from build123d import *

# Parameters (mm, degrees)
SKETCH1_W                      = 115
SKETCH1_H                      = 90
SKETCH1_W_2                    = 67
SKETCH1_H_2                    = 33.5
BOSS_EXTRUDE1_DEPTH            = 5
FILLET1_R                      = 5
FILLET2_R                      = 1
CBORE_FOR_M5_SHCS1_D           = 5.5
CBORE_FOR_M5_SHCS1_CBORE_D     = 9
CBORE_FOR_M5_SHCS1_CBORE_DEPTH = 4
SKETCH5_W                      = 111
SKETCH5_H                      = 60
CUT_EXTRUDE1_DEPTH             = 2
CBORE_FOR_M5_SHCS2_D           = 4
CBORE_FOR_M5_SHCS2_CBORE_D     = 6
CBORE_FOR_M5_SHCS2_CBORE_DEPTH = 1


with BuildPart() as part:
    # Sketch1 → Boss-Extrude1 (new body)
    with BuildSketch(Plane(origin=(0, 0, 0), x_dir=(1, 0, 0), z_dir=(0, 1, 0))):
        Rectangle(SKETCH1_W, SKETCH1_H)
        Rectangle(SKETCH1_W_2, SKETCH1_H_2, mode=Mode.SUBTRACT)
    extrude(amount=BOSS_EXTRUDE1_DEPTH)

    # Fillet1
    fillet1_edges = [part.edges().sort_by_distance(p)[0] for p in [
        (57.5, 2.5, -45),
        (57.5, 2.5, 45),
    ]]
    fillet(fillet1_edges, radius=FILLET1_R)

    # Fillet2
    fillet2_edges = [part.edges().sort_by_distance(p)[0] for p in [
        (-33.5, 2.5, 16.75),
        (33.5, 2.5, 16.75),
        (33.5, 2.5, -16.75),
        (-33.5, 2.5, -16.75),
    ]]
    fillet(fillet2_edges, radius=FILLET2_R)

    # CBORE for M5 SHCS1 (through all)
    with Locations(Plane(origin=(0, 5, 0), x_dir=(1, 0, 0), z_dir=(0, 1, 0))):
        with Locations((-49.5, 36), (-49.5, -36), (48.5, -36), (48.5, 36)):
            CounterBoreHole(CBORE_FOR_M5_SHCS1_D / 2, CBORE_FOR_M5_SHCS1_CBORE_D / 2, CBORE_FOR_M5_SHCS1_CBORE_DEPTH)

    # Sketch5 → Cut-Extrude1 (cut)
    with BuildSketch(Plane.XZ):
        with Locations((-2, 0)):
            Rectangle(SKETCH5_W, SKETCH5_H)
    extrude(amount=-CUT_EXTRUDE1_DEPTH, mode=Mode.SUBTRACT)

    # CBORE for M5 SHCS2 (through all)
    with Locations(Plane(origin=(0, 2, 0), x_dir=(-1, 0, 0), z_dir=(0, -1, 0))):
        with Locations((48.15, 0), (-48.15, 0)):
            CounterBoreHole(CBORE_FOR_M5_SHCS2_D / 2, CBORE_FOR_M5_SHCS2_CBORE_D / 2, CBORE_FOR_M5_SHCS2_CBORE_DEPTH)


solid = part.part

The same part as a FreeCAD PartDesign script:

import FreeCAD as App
import Part
import Sketcher

V = App.Vector


def edges_at(feature, points):
    """Names of the edges that pass closest to the given points."""
    edges = feature.Shape.Edges
    near = lambda p: min(range(len(edges)), key=lambda i: edges[i].distToShape(Part.Vertex(*p))[0])
    return sorted({f"Edge{near(p) + 1}" for p in points})


def add_polygon(sketch, points):
    """Adds a closed chain of lines whose ends are joined by coincident constraints."""
    first, n = sketch.GeometryCount, len(points)
    for a, b in zip(points, points[1:] + points[:1]):
        sketch.addGeometry(Part.LineSegment(App.Vector(*a, 0), App.Vector(*b, 0)), False)
    for i in range(n):
        sketch.addConstraint(Sketcher.Constraint("Coincident", first + i, 2, first + (i + 1) % n, 1))

doc = App.newDocument("Part")
params = doc.addObject("Spreadsheet::Sheet", "Params")
for row, (alias, value) in enumerate([
    ("sketch1_width", "115 mm"),
    ("sketch1_width2", "67 mm"),
    ("sketch1_height", "90 mm"),
    ("sketch1_height2", "33.5 mm"),
    ("pad1_length", "5 mm"),
    ("fillet_radius", "5 mm"),
    ("fillet2_radius", "1 mm"),
    ("sketch2_diameter", "5.5 mm"),
    ("hole_diameter", "5.5 mm"),
    ("hole_cbore_diameter", "9 mm"),
    ("hole_cbore_depth", "4 mm"),
    ("sketch3_width", "111 mm"),
    ("sketch3_height", "60 mm"),
    ("pocket1_length", "2 mm"),
    ("sketch4_diameter", "4 mm"),
    ("hole2_diameter", "4 mm"),
    ("hole2_cbore_diameter", "6 mm"),
    ("hole2_cbore_depth", "1 mm"),
], start=1):
    params.set(f"A{row}", alias)
    params.set(f"B{row}", "=" + value)
    params.setAlias(f"B{row}", alias)

body = doc.addObject("PartDesign::Body", "Body")

sketch1 = doc.addObject("Sketcher::SketchObject", "Sketch")
body.addObject(sketch1)
sketch1.AttachmentSupport = (doc.XZ_Plane, [""])
sketch1.MapMode = "FlatFace"
add_polygon(sketch1, [(-58, -45), (-58, 45), (58, 45), (58, -45)])
add_polygon(sketch1, [(34, 17), (-34, 17), (-34, -17), (34, -17)])
sketch1.addConstraint(Sketcher.Constraint("Vertical", 0))
sketch1.addConstraint(Sketcher.Constraint("Horizontal", 1))
sketch1.addConstraint(Sketcher.Constraint("Vertical", 2))
sketch1.addConstraint(Sketcher.Constraint("Horizontal", 3))
sketch1.addConstraint(Sketcher.Constraint("Horizontal", 4))
sketch1.addConstraint(Sketcher.Constraint("Vertical", 5))
sketch1.addConstraint(Sketcher.Constraint("Horizontal", 6))
sketch1.addConstraint(Sketcher.Constraint("Vertical", 7))
sketch1.addConstraint(Sketcher.Constraint("Symmetric", 0, 2, 2, 2, -1, 1))
sketch1.addConstraint(Sketcher.Constraint("Symmetric", 4, 2, 6, 2, -1, 1))
sketch1.addConstraint(Sketcher.Constraint("DistanceX", 1, 1, 1, 2, 115.0))
sketch1.addConstraint(Sketcher.Constraint("DistanceX", 4, 2, 4, 1, 67.0))
sketch1.addConstraint(Sketcher.Constraint("DistanceY", 0, 1, 0, 2, 90.0))
sketch1.addConstraint(Sketcher.Constraint("DistanceY", 5, 2, 5, 1, 33.5))
sketch1.setExpression("Constraints[18]", "Params.sketch1_width")
sketch1.setExpression("Constraints[19]", "Params.sketch1_width2")
sketch1.setExpression("Constraints[20]", "Params.sketch1_height")
sketch1.setExpression("Constraints[21]", "Params.sketch1_height2")
pad1 = doc.addObject("PartDesign::Pad", "Pad")
body.addObject(pad1)
pad1.Profile = sketch1
pad1.setExpression("Length", "Params.pad1_length")
pad1.Reversed = True
doc.recompute()

fillet = doc.addObject("PartDesign::Fillet", "Fillet")
body.addObject(fillet)
fillet.Base = (pad1, edges_at(pad1, [(57.5, 2.5, -45), (57.5, 2.5, 45)]))
fillet.setExpression("Radius", "Params.fillet_radius")
doc.recompute()

fillet2 = doc.addObject("PartDesign::Fillet", "Fillet001")
body.addObject(fillet2)
fillet2.Base = (fillet, edges_at(fillet, [
    (-33.5, 2.5, 16.75),
    (33.5, 2.5, 16.75),
    (33.5, 2.5, -16.75),
    (-33.5, 2.5, -16.75),
]))
fillet2.setExpression("Radius", "Params.fillet2_radius")

sketch2 = doc.addObject("Sketcher::SketchObject", "Sketch001")
body.addObject(sketch2)
sketch2.AttachmentSupport = (doc.XZ_Plane, [""])
sketch2.MapMode = "FlatFace"
sketch2.AttachmentOffset = App.Placement(V(0, 0, -5), App.Rotation())
sketch2.addGeometry(Part.Circle(V(-49.5, -36, 0), V(0, 0, 1), 2.8), False)
sketch2.addGeometry(Part.Circle(V(-49.5, 36, 0), V(0, 0, 1), 2.8), False)
sketch2.addGeometry(Part.Circle(V(48.5, 36, 0), V(0, 0, 1), 2.8), False)
sketch2.addGeometry(Part.Circle(V(48.5, -36, 0), V(0, 0, 1), 2.8), False)
sketch2.addConstraint(Sketcher.Constraint("Equal", 0, 1))
sketch2.addConstraint(Sketcher.Constraint("Equal", 1, 2))
sketch2.addConstraint(Sketcher.Constraint("Equal", 2, 3))
sketch2.addConstraint(Sketcher.Constraint("Symmetric", 0, 3, 1, 3, -1))
sketch2.addConstraint(Sketcher.Constraint("Symmetric", 2, 3, 3, 3, -1))
sketch2.addConstraint(Sketcher.Constraint("Horizontal", 1, 3, 2, 3))
sketch2.addConstraint(Sketcher.Constraint("Diameter", 0, 5.5))
sketch2.addConstraint(Sketcher.Constraint("DistanceY", 0, 3, -1, 1, 36.0))
sketch2.addConstraint(Sketcher.Constraint("DistanceX", 1, 3, 2, 3, 98.0))
sketch2.addConstraint(Sketcher.Constraint("DistanceX", 0, 3, -1, 1, 49.5))
sketch2.setExpression("Constraints[6]", "Params.sketch2_diameter")
doc.recompute()
hole = doc.addObject("PartDesign::Hole", "Hole")
body.addObject(hole)
hole.Profile = sketch2
hole.ThreadType = "None"
hole.setExpression("Diameter", "Params.hole_diameter")
hole.DepthType = "ThroughAll"
hole.HoleCutType = "Counterbore"
hole.setExpression("HoleCutDiameter", "Params.hole_cbore_diameter")
hole.setExpression("HoleCutDepth", "Params.hole_cbore_depth")
hole.Reversed = True

sketch3 = doc.addObject("Sketcher::SketchObject", "Sketch002")
body.addObject(sketch3)
sketch3.AttachmentSupport = (doc.XZ_Plane, [""])
sketch3.MapMode = "FlatFace"
add_polygon(sketch3, [(-58, 30), (-58, -30), (54, -30), (54, 30)])
sketch3.addConstraint(Sketcher.Constraint("Vertical", 0))
sketch3.addConstraint(Sketcher.Constraint("Horizontal", 1))
sketch3.addConstraint(Sketcher.Constraint("Vertical", 2))
sketch3.addConstraint(Sketcher.Constraint("Horizontal", 3))
sketch3.addConstraint(Sketcher.Constraint("DistanceX", 1, 1, 1, 2, 111.0))
sketch3.addConstraint(Sketcher.Constraint("DistanceY", 0, 2, 0, 1, 60.0))
sketch3.addConstraint(Sketcher.Constraint("DistanceY", 0, 2, -1, 1, 30.0))
sketch3.addConstraint(Sketcher.Constraint("DistanceX", 0, 2, -1, 1, 57.5))
sketch3.setExpression("Constraints[8]", "Params.sketch3_width")
sketch3.setExpression("Constraints[9]", "Params.sketch3_height")
pocket1 = doc.addObject("PartDesign::Pocket", "Pocket")
body.addObject(pocket1)
pocket1.Profile = sketch3
pocket1.setExpression("Length", "Params.pocket1_length")

sketch4 = doc.addObject("Sketcher::SketchObject", "Sketch003")
body.addObject(sketch4)
sketch4.AttachmentSupport = (doc.XZ_Plane, [""])
sketch4.MapMode = "FlatFace"
sketch4.AttachmentOffset = App.Placement(V(0, 0, -2), App.Rotation())
sketch4.addGeometry(Part.Circle(V(-48.1, 0, 0), V(0, 0, 1), 2), False)
sketch4.addGeometry(Part.Circle(V(48.1, 0, 0), V(0, 0, 1), 2), False)
sketch4.addConstraint(Sketcher.Constraint("Equal", 0, 1))
sketch4.addConstraint(Sketcher.Constraint("Symmetric", 0, 3, 1, 3, -1, 1))
sketch4.addConstraint(Sketcher.Constraint("PointOnObject", 0, 3, -1))
sketch4.addConstraint(Sketcher.Constraint("Diameter", 0, 4.0))
sketch4.addConstraint(Sketcher.Constraint("DistanceX", 0, 3, 1, 3, 96.3))
sketch4.setExpression("Constraints[3]", "Params.sketch4_diameter")
doc.recompute()
hole2 = doc.addObject("PartDesign::Hole", "Hole001")
body.addObject(hole2)
hole2.Profile = sketch4
hole2.ThreadType = "None"
hole2.setExpression("Diameter", "Params.hole2_diameter")
hole2.DepthType = "ThroughAll"
hole2.HoleCutType = "Counterbore"
hole2.setExpression("HoleCutDiameter", "Params.hole2_cbore_diameter")
hole2.setExpression("HoleCutDepth", "Params.hole2_cbore_depth")

doc.recompute()
